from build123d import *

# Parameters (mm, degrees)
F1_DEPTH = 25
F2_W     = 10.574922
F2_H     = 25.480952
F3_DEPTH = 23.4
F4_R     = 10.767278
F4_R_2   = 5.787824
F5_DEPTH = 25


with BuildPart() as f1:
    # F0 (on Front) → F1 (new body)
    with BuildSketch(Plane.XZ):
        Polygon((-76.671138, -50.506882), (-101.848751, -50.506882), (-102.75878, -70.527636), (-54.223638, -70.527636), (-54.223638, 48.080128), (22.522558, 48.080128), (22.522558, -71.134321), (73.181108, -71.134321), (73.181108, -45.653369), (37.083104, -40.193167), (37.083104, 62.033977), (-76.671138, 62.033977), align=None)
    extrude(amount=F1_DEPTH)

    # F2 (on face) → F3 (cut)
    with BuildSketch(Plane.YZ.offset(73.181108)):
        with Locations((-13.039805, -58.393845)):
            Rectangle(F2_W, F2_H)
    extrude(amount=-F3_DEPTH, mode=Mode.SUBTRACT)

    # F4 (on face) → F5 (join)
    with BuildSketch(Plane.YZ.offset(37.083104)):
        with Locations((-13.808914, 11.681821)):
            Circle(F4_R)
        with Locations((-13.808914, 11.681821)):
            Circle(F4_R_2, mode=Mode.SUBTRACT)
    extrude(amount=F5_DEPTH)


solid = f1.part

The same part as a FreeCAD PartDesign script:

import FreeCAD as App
import Part
import Sketcher

V = App.Vector


def add_polygon(sketch, points):
    """Adds a closed chain of lines whose ends are joined by coincident constraints."""
    first, n = sketch.GeometryCount, len(points)
    for a, b in zip(points, points[1:] + points[:1]):
        sketch.addGeometry(Part.LineSegment(App.Vector(*a, 0), App.Vector(*b, 0)), False)
    for i in range(n):
        sketch.addConstraint(Sketcher.Constraint("Coincident", first + i, 2, first + (i + 1) % n, 1))

doc = App.newDocument("Part")
body = doc.addObject("PartDesign::Body", "Body")

sketch1 = body.newObject("Sketcher::SketchObject", "Sketch")
sketch1.AttachmentSupport = (doc.getObject("XZ_Plane"), [""])
sketch1.MapMode = "FlatFace"
add_polygon(sketch1, [(-77, -51), (-102, -51), (-103, -71), (-54, -71), (-54, 48), (23, 48), (23, -71), (73, -71), (73, -46), (37, -40), (37, 62), (-77, 62)])
sketch1.addConstraint(Sketcher.Constraint("Horizontal", 0))
sketch1.addConstraint(Sketcher.Constraint("Horizontal", 2))
sketch1.addConstraint(Sketcher.Constraint("Vertical", 3))
sketch1.addConstraint(Sketcher.Constraint("Horizontal", 4))
sketch1.addConstraint(Sketcher.Constraint("Vertical", 5))
sketch1.addConstraint(Sketcher.Constraint("Horizontal", 6))
sketch1.addConstraint(Sketcher.Constraint("Vertical", 7))
sketch1.addConstraint(Sketcher.Constraint("Vertical", 9))
sketch1.addConstraint(Sketcher.Constraint("Horizontal", 10))
sketch1.addConstraint(Sketcher.Constraint("Vertical", 11))
sketch1.addConstraint(Sketcher.Constraint("DistanceX", 6, 1, 6, 2, 50.65855))
sketch1.addConstraint(Sketcher.Constraint("DistanceY", 5, 2, 5, 1, 119.214449))
sketch1.addConstraint(Sketcher.Constraint("DistanceY", 11, 2, 11, 1, 112.540859))
sketch1.addConstraint(Sketcher.Constraint("DistanceY", 7, 2, 8, 2, 5.460202))
sketch1.addConstraint(Sketcher.Constraint("DistanceY", 5, 2, 9, 2, 133.168298))
sketch1.addConstraint(Sketcher.Constraint("DistanceX", 10, 2, 3, 2, 22.4475))
sketch1.addConstraint(Sketcher.Constraint("DistanceX", 0, 2, 0, 1, 25.177613))
sketch1.addConstraint(Sketcher.Constraint("DistanceX", 2, 1, 2, 2, 48.535142))
sketch1.addConstraint(Sketcher.Constraint("DistanceX", 4, 1, 4, 2, 76.746196))
sketch1.addConstraint(Sketcher.Constraint("DistanceX", 10, 2, 10, 1, 113.754242))
sketch1.addConstraint(Sketcher.Constraint("DistanceY", 3, 1, 3, 2, 118.607764))
sketch1.addConstraint(Sketcher.Constraint("DistanceY", 7, 1, 7, 2, 25.480952))
sketch1.addConstraint(Sketcher.Constraint("DistanceX", 0, 2, -1, 1, 101.848751))
sketch1.addConstraint(Sketcher.Constraint("DistanceY", 0, 2, -1, 1, 50.506882))
pad1 = body.newObject("PartDesign::Pad", "Pad")
pad1.Profile = sketch1
pad1.Length = 25

sketch2 = body.newObject("Sketcher::SketchObject", "Sketch001")
sketch2.AttachmentSupport = (doc.getObject("YZ_Plane"), [""])
sketch2.MapMode = "FlatFace"
sketch2.AttachmentOffset = App.Placement(V(0, 0, 73.181108), App.Rotation())
add_polygon(sketch2, [(-18, -46), (-18, -71), (-8, -71), (-8, -46)])
sketch2.addConstraint(Sketcher.Constraint("Vertical", 0))
sketch2.addConstraint(Sketcher.Constraint("Horizontal", 1))
sketch2.addConstraint(Sketcher.Constraint("Vertical", 2))
sketch2.addConstraint(Sketcher.Constraint("Horizontal", 3))
sketch2.addConstraint(Sketcher.Constraint("DistanceX", 1, 1, 1, 2, 10.574922))
sketch2.addConstraint(Sketcher.Constraint("DistanceY", 0, 2, 0, 1, 25.480952))
sketch2.addConstraint(Sketcher.Constraint("DistanceY", 0, 2, -1, 1, 71.134321))
sketch2.addConstraint(Sketcher.Constraint("DistanceX", 0, 2, -1, 1, 18.327266))
pocket1 = body.newObject("PartDesign::Pocket", "Pocket")
pocket1.Profile = sketch2
pocket1.Length = 23.4

sketch3 = body.newObject("Sketcher::SketchObject", "Sketch002")
sketch3.AttachmentSupport = (doc.getObject("YZ_Plane"), [""])
sketch3.MapMode = "FlatFace"
sketch3.AttachmentOffset = App.Placement(V(0, 0, 37.083104), App.Rotation())
sketch3.addGeometry(Part.Circle(V(-14, 12, 0), V(0, 0, 1), 11), False)
sketch3.addGeometry(Part.Circle(V(-14, 12, 0), V(0, 0, 1), 6), False)
sketch3.addConstraint(Sketcher.Constraint("Coincident", 1, 3, 0, 3))
sketch3.addConstraint(Sketcher.Constraint("Diameter", 0, 21.534556))
sketch3.addConstraint(Sketcher.Constraint("Diameter", 1, 11.575648))
sketch3.addConstraint(Sketcher.Constraint("DistanceY", -1, 1, 0, 3, 11.681821))
sketch3.addConstraint(Sketcher.Constraint("DistanceX", 0, 3, -1, 1, 13.808914))
pad2 = body.newObject("PartDesign::Pad", "Pad001")
pad2.Profile = sketch3
pad2.Length = 25

doc.recompute()
